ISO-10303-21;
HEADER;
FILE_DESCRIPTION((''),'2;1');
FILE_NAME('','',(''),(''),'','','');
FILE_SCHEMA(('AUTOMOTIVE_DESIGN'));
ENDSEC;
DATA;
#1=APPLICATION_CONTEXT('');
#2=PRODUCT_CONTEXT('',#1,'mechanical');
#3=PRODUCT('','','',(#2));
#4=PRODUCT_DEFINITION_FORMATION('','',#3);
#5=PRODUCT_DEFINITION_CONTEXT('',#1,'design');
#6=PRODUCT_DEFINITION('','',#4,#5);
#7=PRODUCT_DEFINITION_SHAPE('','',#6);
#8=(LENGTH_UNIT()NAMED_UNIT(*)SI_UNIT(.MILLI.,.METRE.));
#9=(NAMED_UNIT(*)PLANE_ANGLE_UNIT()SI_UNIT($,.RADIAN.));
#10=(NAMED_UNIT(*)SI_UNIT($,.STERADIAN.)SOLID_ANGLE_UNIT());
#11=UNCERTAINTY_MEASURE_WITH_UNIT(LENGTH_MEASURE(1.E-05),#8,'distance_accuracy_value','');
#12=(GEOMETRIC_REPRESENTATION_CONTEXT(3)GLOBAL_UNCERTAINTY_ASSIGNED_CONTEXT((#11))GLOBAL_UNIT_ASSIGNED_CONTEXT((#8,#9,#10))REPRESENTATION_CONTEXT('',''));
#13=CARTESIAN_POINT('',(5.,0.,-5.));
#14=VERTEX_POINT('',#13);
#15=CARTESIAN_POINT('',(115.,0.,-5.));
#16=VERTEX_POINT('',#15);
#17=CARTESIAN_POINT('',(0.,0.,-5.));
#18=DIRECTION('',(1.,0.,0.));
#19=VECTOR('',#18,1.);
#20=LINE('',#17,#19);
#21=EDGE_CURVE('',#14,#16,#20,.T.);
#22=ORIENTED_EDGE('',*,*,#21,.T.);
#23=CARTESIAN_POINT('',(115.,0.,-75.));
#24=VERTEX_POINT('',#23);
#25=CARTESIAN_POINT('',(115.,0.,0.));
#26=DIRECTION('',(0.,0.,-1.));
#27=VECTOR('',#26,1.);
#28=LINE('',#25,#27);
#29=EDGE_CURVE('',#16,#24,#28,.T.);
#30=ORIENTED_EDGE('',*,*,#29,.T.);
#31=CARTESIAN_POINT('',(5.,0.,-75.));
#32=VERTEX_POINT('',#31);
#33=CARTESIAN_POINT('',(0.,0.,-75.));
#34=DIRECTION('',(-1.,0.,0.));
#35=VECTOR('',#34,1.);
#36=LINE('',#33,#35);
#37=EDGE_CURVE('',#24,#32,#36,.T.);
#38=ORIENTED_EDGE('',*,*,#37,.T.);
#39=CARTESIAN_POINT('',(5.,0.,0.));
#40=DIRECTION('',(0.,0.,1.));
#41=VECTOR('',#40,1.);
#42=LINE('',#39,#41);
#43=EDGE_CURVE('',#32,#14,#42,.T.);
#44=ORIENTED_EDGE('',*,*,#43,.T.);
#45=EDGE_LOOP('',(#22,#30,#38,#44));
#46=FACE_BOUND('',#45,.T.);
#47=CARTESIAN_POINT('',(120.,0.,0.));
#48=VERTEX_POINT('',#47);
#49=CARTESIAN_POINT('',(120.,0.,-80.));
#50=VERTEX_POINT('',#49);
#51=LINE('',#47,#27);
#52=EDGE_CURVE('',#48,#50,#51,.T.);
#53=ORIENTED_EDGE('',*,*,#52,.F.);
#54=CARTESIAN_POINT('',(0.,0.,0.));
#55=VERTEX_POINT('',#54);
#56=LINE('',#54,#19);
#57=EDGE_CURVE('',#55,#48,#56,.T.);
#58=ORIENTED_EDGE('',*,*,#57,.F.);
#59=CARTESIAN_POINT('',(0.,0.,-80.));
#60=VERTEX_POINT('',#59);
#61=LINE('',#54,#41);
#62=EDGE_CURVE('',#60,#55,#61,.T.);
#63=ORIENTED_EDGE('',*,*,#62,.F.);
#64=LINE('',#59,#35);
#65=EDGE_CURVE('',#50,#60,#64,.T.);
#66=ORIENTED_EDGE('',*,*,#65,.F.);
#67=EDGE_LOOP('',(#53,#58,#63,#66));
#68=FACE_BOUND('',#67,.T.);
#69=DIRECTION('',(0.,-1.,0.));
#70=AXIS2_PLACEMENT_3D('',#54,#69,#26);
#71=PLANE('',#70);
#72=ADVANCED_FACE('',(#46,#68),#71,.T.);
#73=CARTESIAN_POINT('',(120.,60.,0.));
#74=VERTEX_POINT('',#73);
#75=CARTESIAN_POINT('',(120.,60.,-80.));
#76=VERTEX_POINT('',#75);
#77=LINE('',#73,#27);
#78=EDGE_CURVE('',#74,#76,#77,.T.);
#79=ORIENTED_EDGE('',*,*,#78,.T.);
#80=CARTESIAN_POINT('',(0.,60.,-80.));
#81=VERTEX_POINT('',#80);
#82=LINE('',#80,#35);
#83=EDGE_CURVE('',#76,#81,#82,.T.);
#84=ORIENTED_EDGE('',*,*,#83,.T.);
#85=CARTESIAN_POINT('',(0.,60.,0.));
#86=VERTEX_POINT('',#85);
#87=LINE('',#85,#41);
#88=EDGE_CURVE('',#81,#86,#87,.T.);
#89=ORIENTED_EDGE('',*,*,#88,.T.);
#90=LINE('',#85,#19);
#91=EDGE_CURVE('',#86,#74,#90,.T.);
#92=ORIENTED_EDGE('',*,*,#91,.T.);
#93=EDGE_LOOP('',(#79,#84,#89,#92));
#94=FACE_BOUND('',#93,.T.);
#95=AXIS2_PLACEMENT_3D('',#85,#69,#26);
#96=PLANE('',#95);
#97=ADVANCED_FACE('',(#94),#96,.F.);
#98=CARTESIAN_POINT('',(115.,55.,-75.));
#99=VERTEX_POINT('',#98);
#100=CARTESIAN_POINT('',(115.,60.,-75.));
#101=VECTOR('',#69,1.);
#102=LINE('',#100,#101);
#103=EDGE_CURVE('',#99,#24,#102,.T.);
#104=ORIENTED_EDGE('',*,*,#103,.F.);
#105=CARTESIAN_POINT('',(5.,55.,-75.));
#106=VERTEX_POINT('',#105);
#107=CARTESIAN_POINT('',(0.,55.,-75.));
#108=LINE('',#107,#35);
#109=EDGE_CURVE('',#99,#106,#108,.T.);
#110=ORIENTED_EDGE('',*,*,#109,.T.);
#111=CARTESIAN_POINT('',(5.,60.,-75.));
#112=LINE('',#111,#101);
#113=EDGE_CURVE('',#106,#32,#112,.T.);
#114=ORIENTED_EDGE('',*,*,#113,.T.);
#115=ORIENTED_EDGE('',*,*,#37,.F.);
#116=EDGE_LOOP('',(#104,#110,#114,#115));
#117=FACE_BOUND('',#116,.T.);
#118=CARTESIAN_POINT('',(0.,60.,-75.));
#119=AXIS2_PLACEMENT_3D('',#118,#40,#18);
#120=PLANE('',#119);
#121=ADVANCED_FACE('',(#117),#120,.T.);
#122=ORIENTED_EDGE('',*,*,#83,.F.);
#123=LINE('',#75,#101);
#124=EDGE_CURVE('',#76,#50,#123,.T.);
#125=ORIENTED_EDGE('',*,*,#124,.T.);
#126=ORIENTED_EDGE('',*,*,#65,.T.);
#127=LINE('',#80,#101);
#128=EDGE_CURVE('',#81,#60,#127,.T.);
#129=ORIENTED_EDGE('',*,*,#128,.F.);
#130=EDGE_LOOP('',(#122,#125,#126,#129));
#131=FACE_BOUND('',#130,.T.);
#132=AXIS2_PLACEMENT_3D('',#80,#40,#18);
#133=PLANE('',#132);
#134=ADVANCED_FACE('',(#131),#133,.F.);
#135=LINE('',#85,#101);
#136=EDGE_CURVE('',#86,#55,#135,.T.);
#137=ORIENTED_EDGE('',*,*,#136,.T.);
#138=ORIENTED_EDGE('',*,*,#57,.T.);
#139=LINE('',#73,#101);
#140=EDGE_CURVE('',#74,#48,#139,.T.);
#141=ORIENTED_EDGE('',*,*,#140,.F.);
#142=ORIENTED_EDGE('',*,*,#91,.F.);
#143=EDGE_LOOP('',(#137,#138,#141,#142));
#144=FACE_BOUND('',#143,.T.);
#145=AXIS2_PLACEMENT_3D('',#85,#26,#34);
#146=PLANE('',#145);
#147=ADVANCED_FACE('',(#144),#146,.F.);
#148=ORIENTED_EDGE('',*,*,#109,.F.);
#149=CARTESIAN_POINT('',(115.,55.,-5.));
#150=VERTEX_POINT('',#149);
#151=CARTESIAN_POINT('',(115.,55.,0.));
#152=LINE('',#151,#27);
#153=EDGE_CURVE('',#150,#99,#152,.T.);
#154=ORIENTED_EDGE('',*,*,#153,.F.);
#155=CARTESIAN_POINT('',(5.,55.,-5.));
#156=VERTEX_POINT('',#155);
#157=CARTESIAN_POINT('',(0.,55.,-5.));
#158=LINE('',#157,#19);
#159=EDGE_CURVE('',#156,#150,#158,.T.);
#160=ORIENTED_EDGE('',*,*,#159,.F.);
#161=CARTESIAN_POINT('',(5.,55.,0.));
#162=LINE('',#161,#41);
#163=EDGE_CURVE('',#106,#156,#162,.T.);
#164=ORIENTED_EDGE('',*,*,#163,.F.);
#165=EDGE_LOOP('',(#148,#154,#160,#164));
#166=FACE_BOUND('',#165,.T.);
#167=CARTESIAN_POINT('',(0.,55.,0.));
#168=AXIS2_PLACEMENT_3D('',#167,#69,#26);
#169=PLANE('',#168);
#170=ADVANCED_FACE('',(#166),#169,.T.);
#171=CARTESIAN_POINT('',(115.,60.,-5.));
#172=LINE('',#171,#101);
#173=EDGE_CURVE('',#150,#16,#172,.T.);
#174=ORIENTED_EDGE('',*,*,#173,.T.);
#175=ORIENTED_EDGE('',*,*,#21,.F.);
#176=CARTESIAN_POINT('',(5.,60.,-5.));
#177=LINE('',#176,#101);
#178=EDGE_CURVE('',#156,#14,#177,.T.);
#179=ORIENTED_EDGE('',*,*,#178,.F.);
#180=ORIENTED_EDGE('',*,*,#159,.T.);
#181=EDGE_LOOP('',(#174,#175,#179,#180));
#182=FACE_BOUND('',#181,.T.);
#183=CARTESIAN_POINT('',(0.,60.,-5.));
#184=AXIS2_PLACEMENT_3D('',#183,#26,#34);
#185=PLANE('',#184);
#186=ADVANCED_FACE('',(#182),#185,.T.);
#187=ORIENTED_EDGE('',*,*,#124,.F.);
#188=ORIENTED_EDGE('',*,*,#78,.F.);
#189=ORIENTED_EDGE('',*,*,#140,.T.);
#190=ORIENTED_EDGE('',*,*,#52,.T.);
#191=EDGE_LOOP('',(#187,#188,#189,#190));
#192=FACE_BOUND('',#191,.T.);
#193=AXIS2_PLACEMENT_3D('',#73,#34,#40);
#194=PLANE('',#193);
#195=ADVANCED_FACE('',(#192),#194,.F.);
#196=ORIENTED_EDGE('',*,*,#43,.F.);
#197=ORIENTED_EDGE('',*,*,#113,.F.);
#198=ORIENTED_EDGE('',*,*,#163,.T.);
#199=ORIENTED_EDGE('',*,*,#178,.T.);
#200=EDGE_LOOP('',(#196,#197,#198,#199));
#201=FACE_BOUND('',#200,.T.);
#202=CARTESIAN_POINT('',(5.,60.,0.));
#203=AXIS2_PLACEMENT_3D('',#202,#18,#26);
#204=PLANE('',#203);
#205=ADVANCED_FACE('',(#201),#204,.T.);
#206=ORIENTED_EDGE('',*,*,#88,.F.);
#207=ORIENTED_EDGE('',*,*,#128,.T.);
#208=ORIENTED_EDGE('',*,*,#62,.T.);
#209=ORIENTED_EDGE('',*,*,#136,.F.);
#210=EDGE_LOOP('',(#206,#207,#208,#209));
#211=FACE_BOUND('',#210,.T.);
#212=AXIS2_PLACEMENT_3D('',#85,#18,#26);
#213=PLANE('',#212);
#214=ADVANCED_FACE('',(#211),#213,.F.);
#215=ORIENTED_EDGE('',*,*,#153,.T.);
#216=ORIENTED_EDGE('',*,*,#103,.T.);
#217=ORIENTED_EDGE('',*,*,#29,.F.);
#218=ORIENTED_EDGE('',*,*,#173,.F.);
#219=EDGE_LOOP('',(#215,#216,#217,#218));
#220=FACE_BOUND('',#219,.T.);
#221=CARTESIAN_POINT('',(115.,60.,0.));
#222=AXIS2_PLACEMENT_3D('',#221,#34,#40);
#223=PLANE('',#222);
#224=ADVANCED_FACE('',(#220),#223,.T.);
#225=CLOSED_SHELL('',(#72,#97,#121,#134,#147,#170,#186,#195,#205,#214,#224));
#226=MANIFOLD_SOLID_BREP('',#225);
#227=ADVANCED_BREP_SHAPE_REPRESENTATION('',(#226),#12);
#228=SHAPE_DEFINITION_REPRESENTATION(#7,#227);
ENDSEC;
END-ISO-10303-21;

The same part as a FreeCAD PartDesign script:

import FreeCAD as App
import Part
import Sketcher

V = App.Vector
Q = App.Units.Quantity


def faces_at(feature, points):
    """Names of the faces that lie closest to the given points."""
    faces = feature.Shape.Faces
    near = lambda p: min(range(len(faces)), key=lambda i: faces[i].distToShape(Part.Vertex(*p))[0])
    return sorted({f"Face{near(p) + 1}" for p in points})


def add_polygon(sketch, points):
    """Adds a closed chain of lines whose ends are joined by coincident constraints."""
    first, n = sketch.GeometryCount, len(points)
    for a, b in zip(points, points[1:] + points[:1]):
        sketch.addGeometry(Part.LineSegment(App.Vector(*a, 0), App.Vector(*b, 0)), False)
    for i in range(n):
        sketch.addConstraint(Sketcher.Constraint("Coincident", first + i, 2, first + (i + 1) % n, 1))

doc = App.newDocument("Part")
body = doc.addObject("PartDesign::Body", "Body")

# Sketch on XZ plane
sketch1 = body.newObject("Sketcher::SketchObject", "Sketch")
sketch1.AttachmentSupport = (doc.getObject("XZ_Plane"), [""])
sketch1.MapMode = "FlatFace"
add_polygon(sketch1, [(0, -80), (0, 0), (120, 0), (120, -80)])  # lines 0-3
sketch1.addConstraint([
    Sketcher.Constraint("Vertical", 0),
    Sketcher.Constraint("Horizontal", 1),
    Sketcher.Constraint("Vertical", 2),
    Sketcher.Constraint("Horizontal", 3),
    Sketcher.Constraint("Coincident", 0, 2, -1, 1),
    Sketcher.Constraint("DistanceX", 1, 1, 1, 2, Q("120 mm")),
    Sketcher.Constraint("DistanceY", 0, 1, 0, 2, Q("80 mm")),
])
pad1 = body.newObject("PartDesign::Pad", "Pad")
pad1.Profile = sketch1
pad1.Length = 60
pad1.Reversed = True
doc.recompute()

thickness = body.newObject("PartDesign::Thickness", "Thickness")
thickness.Base = (pad1, faces_at(pad1, [(60, 0, -40)]))
thickness.Value = 5
thickness.Reversed = True
thickness.Join = "Intersection"

doc.recompute()
